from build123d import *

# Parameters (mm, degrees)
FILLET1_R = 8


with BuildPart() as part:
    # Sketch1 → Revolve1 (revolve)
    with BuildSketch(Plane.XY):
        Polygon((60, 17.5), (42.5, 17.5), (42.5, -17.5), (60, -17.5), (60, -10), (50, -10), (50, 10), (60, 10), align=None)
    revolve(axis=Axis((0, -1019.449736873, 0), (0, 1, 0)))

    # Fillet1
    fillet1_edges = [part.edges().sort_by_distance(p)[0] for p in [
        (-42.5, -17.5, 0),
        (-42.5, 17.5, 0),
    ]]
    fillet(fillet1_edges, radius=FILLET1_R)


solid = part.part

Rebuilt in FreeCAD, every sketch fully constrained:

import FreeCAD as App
import Part
import Sketcher
from FreeCAD import Vector
Q = App.Units.Quantity


def edges_at(feature, points):
    """Names of the edges that pass closest to the given points."""
    edges = feature.Shape.Edges
    near = lambda p: min(range(len(edges)), key=lambda i: edges[i].distToShape(Part.Vertex(*p))[0])
    return sorted({f"Edge{near(p) + 1}" for p in points})


def add_polygon(sketch, points):
    """Adds a closed chain of lines whose ends are joined by coincident constraints."""
    first, n = sketch.GeometryCount, len(points)
    for a, b in zip(points, points[1:] + points[:1]):
        sketch.addGeometry(Part.LineSegment(App.Vector(*a, 0), App.Vector(*b, 0)), False)
    for i in range(n):
        sketch.addConstraint(Sketcher.Constraint("Coincident", first + i, 2, first + (i + 1) % n, 1))

doc = App.newDocument("Part")
params = doc.addObject("Spreadsheet::Sheet", "Params")
for row, (alias, value) in enumerate([
    ("sketch1_width", "10 mm"),
    ("sketch1_height", "35 mm"),
    ("sketch1_height2", "20 mm"),
    ("sketch1_width2", "17.5 mm"),
    ("revolution_angle", "360 deg"),
    ("fillet_radius", "8 mm"),
], start=1):
    params.set(f"A{row}", alias)
    params.set(f"B{row}", "=" + value)
    params.setAlias(f"B{row}", alias)

body = doc.addObject("PartDesign::Body", "Body")

sketch1 = doc.addObject("Sketcher::SketchObject", "Sketch")
body.addObject(sketch1)
sketch1.AttachmentSupport = (doc.XY_Plane, [""])
sketch1.MapMode = "FlatFace"
add_polygon(sketch1, [(60, 18), (42, 18), (42, -18), (60, -18), (60, -10), (50, -10), (50, 10), (60, 10)])
sketch1.addConstraint([
    Sketcher.Constraint("Horizontal", 0),
    Sketcher.Constraint("Vertical", 1),
    Sketcher.Constraint("Horizontal", 2),
    Sketcher.Constraint("Vertical", 3),
    Sketcher.Constraint("Horizontal", 4),
    Sketcher.Constraint("Vertical", 5),
    Sketcher.Constraint("Horizontal", 6),
    Sketcher.Constraint("Vertical", 7),
    Sketcher.Constraint("Symmetric", 3, 2, 6, 2, -1),
    Sketcher.Constraint("Equal", 3, 7),
    Sketcher.Constraint("DistanceX", 4, 2, 4, 1, Q("10 mm")),
    Sketcher.Constraint("DistanceY", 1, 2, 1, 1, Q("35 mm")),
    Sketcher.Constraint("DistanceY", 5, 1, 5, 2, Q("20 mm")),
    Sketcher.Constraint("DistanceX", 0, 2, 0, 1, Q("17.5 mm")),
    Sketcher.Constraint("DistanceX", -1, 1, 2, 2, Q("60 mm")),
])
sketch1.setExpression("Constraints[18]", "Params.sketch1_width")
sketch1.setExpression("Constraints[19]", "Params.sketch1_height")
sketch1.setExpression("Constraints[20]", "Params.sketch1_height2")
sketch1.setExpression("Constraints[21]", "Params.sketch1_width2")
revolution = doc.addObject("PartDesign::Revolution", "Revolution")
body.addObject(revolution)
revolution.Profile = sketch1
revolution.ReferenceAxis = (sketch1, ["V_Axis"])
revolution.setExpression("Angle", "Params.revolution_angle")
doc.recompute()

fillet = doc.addObject("PartDesign::Fillet", "Fillet")
body.addObject(fillet)
fillet.Base = (revolution, edges_at(revolution, [(-42.5, -17.5, 0), (-42.5, 17.5, 0)]))
fillet.setExpression("Radius", "Params.fillet_radius")

doc.recompute()
